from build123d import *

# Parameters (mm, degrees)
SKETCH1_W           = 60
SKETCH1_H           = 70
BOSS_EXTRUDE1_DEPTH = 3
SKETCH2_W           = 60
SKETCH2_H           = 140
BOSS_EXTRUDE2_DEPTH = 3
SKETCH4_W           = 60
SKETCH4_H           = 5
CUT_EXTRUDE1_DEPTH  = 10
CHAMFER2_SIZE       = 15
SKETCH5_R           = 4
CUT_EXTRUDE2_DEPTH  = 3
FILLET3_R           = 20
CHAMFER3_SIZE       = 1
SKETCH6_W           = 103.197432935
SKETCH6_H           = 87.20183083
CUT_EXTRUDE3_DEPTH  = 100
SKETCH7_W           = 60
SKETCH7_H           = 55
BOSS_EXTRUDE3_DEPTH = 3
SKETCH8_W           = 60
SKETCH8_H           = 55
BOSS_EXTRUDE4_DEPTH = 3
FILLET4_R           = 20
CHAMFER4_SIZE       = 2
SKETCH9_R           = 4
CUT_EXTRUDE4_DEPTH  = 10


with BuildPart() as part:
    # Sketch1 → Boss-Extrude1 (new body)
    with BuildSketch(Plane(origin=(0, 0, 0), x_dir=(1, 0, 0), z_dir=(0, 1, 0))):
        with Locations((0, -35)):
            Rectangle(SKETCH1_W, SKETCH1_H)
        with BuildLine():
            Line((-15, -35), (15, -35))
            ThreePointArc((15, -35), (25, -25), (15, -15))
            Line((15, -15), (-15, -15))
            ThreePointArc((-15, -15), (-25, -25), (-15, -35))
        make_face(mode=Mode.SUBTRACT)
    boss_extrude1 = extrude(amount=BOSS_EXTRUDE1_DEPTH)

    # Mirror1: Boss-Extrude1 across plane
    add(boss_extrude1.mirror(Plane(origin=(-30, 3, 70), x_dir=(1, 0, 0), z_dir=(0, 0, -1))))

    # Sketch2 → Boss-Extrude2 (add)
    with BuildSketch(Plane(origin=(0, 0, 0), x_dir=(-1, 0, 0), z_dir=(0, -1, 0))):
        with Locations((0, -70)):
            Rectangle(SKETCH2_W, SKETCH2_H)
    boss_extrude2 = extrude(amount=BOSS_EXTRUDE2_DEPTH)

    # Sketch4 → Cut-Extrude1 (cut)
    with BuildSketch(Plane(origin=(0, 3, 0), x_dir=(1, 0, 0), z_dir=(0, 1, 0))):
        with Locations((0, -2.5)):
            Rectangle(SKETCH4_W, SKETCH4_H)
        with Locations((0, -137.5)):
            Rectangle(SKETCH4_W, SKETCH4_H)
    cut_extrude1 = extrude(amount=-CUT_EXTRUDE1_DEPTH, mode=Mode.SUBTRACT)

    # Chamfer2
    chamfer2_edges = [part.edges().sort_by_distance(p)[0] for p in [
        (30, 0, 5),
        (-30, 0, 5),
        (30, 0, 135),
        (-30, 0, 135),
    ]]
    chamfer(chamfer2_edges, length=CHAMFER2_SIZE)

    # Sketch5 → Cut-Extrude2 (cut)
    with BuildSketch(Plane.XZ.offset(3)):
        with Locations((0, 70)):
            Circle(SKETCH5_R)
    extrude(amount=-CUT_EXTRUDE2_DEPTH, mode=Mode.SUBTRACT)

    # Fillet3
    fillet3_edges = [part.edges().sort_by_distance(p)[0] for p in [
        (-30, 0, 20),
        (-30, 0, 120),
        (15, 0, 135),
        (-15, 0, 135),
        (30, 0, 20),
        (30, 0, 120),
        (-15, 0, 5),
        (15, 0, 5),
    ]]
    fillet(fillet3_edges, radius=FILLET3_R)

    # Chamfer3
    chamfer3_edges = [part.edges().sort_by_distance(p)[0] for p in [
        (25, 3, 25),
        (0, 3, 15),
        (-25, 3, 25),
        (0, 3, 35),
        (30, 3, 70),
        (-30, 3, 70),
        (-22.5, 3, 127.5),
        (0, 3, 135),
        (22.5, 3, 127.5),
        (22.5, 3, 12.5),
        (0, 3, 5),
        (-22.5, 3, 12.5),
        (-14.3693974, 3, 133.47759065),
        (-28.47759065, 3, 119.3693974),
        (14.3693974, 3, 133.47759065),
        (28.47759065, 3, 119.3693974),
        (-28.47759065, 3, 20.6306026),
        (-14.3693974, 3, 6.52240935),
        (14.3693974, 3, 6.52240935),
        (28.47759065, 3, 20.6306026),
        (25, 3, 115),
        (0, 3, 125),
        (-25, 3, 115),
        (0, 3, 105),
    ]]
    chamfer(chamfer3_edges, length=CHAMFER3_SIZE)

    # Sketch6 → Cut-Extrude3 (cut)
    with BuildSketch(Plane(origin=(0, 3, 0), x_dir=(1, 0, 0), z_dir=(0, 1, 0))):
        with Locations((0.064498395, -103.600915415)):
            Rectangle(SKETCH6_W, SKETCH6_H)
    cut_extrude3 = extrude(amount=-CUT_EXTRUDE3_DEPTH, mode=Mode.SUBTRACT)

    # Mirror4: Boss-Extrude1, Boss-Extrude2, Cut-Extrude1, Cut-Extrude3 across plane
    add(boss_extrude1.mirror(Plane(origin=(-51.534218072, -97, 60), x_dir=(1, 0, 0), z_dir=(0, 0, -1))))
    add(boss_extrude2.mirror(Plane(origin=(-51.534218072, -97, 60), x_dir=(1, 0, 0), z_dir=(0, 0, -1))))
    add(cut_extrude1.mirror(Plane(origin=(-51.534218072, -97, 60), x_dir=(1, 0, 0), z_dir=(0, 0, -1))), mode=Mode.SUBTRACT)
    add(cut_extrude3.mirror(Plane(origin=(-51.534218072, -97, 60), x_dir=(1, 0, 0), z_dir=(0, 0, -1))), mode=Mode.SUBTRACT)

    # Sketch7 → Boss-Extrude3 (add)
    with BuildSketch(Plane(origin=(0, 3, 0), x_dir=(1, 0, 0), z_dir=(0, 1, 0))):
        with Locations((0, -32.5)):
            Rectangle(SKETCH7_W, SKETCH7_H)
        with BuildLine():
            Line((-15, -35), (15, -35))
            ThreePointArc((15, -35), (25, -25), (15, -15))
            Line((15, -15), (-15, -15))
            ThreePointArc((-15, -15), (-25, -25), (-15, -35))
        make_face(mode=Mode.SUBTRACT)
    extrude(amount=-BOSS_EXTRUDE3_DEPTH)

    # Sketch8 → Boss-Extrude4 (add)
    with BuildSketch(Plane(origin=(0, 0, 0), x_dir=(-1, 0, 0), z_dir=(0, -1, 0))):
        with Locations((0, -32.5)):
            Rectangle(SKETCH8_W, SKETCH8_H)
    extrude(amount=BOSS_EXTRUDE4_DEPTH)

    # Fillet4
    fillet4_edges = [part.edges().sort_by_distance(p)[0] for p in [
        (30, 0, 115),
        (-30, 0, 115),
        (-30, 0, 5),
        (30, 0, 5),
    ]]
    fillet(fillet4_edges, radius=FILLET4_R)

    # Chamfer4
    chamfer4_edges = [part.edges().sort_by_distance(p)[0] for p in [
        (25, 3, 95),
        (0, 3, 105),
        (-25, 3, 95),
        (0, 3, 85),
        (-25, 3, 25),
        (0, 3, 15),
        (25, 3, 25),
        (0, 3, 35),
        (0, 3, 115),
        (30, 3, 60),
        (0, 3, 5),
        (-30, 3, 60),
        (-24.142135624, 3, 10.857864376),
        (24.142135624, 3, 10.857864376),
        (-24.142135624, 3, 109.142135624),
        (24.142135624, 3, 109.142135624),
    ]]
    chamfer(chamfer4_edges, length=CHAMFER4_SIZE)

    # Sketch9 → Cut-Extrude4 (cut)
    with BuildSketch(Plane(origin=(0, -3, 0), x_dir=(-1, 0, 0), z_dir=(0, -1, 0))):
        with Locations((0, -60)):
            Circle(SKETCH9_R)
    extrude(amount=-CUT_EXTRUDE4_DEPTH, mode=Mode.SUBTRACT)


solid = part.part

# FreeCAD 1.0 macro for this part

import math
import FreeCAD as App
import Part
import Sketcher

V = App.Vector


def edges_at(feature, points):
    """Names of the edges that pass closest to the given points."""
    edges = feature.Shape.Edges
    near = lambda p: min(range(len(edges)), key=lambda i: edges[i].distToShape(Part.Vertex(*p))[0])
    return sorted({f"Edge{near(p) + 1}" for p in points})

doc = App.newDocument("Part")
body = doc.addObject("PartDesign::Body", "Body")

# Sketch on XZ plane
sketch1 = body.newObject("Sketcher::SketchObject", "Sketch")
sketch1.AttachmentSupport = (doc.getObject("XZ_Plane"), [""])
sketch1.MapMode = "FlatFace"
sketch1.addGeometry(Part.LineSegment(V(-30, 0, 0), V(-30, 70, 0)), False)
sketch1.addGeometry(Part.LineSegment(V(-30, 70, 0), V(30, 70, 0)), False)
sketch1.addGeometry(Part.LineSegment(V(30, 70, 0), V(30, 0, 0)), False)
sketch1.addGeometry(Part.LineSegment(V(30, 0, 0), V(-30, 0, 0)), False)
sketch1.addGeometry(Part.LineSegment(V(15, 35, 0), V(-15, 35, 0)), False)
sketch1.addGeometry(Part.ArcOfCircle(Part.Circle(V(-15, 25, 0), V(0, 0, 1), 10), math.radians(90), math.radians(270)), False)
sketch1.addGeometry(Part.LineSegment(V(-15, 15, 0), V(15, 15, 0)), False)
sketch1.addGeometry(Part.ArcOfCircle(Part.Circle(V(15, 25, 0), V(0, 0, 1), 10), math.radians(-90), math.radians(90)), False)
sketch1.addConstraint(Sketcher.Constraint("Coincident", 0, 2, 1, 1))
sketch1.addConstraint(Sketcher.Constraint("Coincident", 1, 2, 2, 1))
sketch1.addConstraint(Sketcher.Constraint("Coincident", 2, 2, 3, 1))
sketch1.addConstraint(Sketcher.Constraint("Coincident", 3, 2, 0, 1))
sketch1.addConstraint(Sketcher.Constraint("Tangent", 4, 2, 5, 1))
sketch1.addConstraint(Sketcher.Constraint("Tangent", 5, 2, 6, 1))
sketch1.addConstraint(Sketcher.Constraint("Tangent", 6, 2, 7, 1))
sketch1.addConstraint(Sketcher.Constraint("Tangent", 7, 2, 4, 1))
sketch1.addConstraint(Sketcher.Constraint("Vertical", 0))
sketch1.addConstraint(Sketcher.Constraint("Horizontal", 1))
sketch1.addConstraint(Sketcher.Constraint("Vertical", 2))
sketch1.addConstraint(Sketcher.Constraint("Horizontal", 3))
sketch1.addConstraint(Sketcher.Constraint("Horizontal", 4))
sketch1.addConstraint(Sketcher.Constraint("Horizontal", 6))
sketch1.addConstraint(Sketcher.Constraint("Symmetric", 2, 2, 3, 2, -1, 1))
sketch1.addConstraint(Sketcher.Constraint("Radius", 5, 10.0))
sketch1.addConstraint(Sketcher.Constraint("DistanceX", 1, 1, 1, 2, 60.0))
sketch1.addConstraint(Sketcher.Constraint("DistanceX", 4, 2, 4, 1, 30.0))
sketch1.addConstraint(Sketcher.Constraint("DistanceY", 0, 1, 0, 2, 70.0))
sketch1.addConstraint(Sketcher.Constraint("DistanceX", 5, 3, -1, 1, 15.0))
sketch1.addConstraint(Sketcher.Constraint("DistanceY", -1, 1, 5, 3, 25.0))
pad1 = body.newObject("PartDesign::Pad", "Pad")
pad1.Profile = sketch1
pad1.Length = 3
pad1.Reversed = True
doc.recompute()

datumplane = body.newObject("PartDesign::Plane", "DatumPlane")
datumplane.AttachmentSupport = (doc.getObject("XY_Plane"), [""])
datumplane.MapMode = "FlatFace"
datumplane.AttachmentOffset = App.Placement(V(0, 0, 70), App.Rotation())
mirrored = body.newObject("PartDesign::Mirrored", "Mirrored")
mirrored.Originals = [pad1]
mirrored.MirrorPlane = (datumplane, [""])
body.Tip = mirrored

# Sketch on XZ plane
sketch2 = body.newObject("Sketcher::SketchObject", "Sketch001")
sketch2.AttachmentSupport = (doc.getObject("XZ_Plane"), [""])
sketch2.MapMode = "FlatFace"
sketch2.addGeometry(Part.LineSegment(V(30, 0, 0), V(30, 140, 0)), False)
sketch2.addGeometry(Part.LineSegment(V(30, 140, 0), V(-30, 140, 0)), False)
sketch2.addGeometry(Part.LineSegment(V(-30, 140, 0), V(-30, 0, 0)), False)
sketch2.addGeometry(Part.LineSegment(V(-30, 0, 0), V(30, 0, 0)), False)
sketch2.addConstraint(Sketcher.Constraint("Coincident", 0, 2, 1, 1))
sketch2.addConstraint(Sketcher.Constraint("Coincident", 1, 2, 2, 1))
sketch2.addConstraint(Sketcher.Constraint("Coincident", 2, 2, 3, 1))
sketch2.addConstraint(Sketcher.Constraint("Coincident", 3, 2, 0, 1))
sketch2.addConstraint(Sketcher.Constraint("Vertical", 0))
sketch2.addConstraint(Sketcher.Constraint("Horizontal", 1))
sketch2.addConstraint(Sketcher.Constraint("Vertical", 2))
sketch2.addConstraint(Sketcher.Constraint("Horizontal", 3))
sketch2.addConstraint(Sketcher.Constraint("Symmetric", 2, 2, 3, 2, -1, 1))
sketch2.addConstraint(Sketcher.Constraint("DistanceX", 1, 2, 1, 1, 60.0))
sketch2.addConstraint(Sketcher.Constraint("DistanceY", 0, 1, 0, 2, 140.0))
pad2 = body.newObject("PartDesign::Pad", "Pad001")
pad2.Profile = sketch2
pad2.Length = 3

# Sketch on XZ plane
sketch3 = body.newObject("Sketcher::SketchObject", "Sketch002")
sketch3.AttachmentSupport = (doc.getObject("XZ_Plane"), [""])
sketch3.MapMode = "FlatFace"
sketch3.AttachmentOffset = App.Placement(V(0, 0, -3), App.Rotation())
sketch3.addGeometry(Part.LineSegment(V(-30, 0, 0), V(-30, 5, 0)), False)
sketch3.addGeometry(Part.LineSegment(V(-30, 5, 0), V(30, 5, 0)), False)
sketch3.addGeometry(Part.LineSegment(V(30, 5, 0), V(30, 0, 0)), False)
sketch3.addGeometry(Part.LineSegment(V(30, 0, 0), V(-30, 0, 0)), False)
sketch3.addGeometry(Part.LineSegment(V(-30, 135, 0), V(-30, 140, 0)), False)
sketch3.addGeometry(Part.LineSegment(V(-30, 140, 0), V(30, 140, 0)), False)
sketch3.addGeometry(Part.LineSegment(V(30, 140, 0), V(30, 135, 0)), False)
sketch3.addGeometry(Part.LineSegment(V(30, 135, 0), V(-30, 135, 0)), False)
sketch3.addConstraint(Sketcher.Constraint("Coincident", 0, 2, 1, 1))
sketch3.addConstraint(Sketcher.Constraint("Coincident", 1, 2, 2, 1))
sketch3.addConstraint(Sketcher.Constraint("Coincident", 2, 2, 3, 1))
sketch3.addConstraint(Sketcher.Constraint("Coincident", 3, 2, 0, 1))
sketch3.addConstraint(Sketcher.Constraint("Coincident", 4, 2, 5, 1))
sketch3.addConstraint(Sketcher.Constraint("Coincident", 5, 2, 6, 1))
sketch3.addConstraint(Sketcher.Constraint("Coincident", 6, 2, 7, 1))
sketch3.addConstraint(Sketcher.Constraint("Coincident", 7, 2, 4, 1))
sketch3.addConstraint(Sketcher.Constraint("Vertical", 0))
sketch3.addConstraint(Sketcher.Constraint("Horizontal", 1))
sketch3.addConstraint(Sketcher.Constraint("Vertical", 2))
sketch3.addConstraint(Sketcher.Constraint("Horizontal", 3))
sketch3.addConstraint(Sketcher.Constraint("Vertical", 4))
sketch3.addConstraint(Sketcher.Constraint("Horizontal", 5))
sketch3.addConstraint(Sketcher.Constraint("Vertical", 6))
sketch3.addConstraint(Sketcher.Constraint("Horizontal", 7))
sketch3.addConstraint(Sketcher.Constraint("Symmetric", 2, 2, 3, 2, -1, 1))
sketch3.addConstraint(Sketcher.Constraint("Vertical", 3, 2, 4, 2))
sketch3.addConstraint(Sketcher.Constraint("Vertical", 2, 2, 5, 2))
sketch3.addConstraint(Sketcher.Constraint("Equal", 2, 4))
sketch3.addConstraint(Sketcher.Constraint("DistanceX", 1, 1, 1, 2, 60.0))
sketch3.addConstraint(Sketcher.Constraint("DistanceY", 0, 1, 0, 2, 5.0))
sketch3.addConstraint(Sketcher.Constraint("DistanceY", -1, 1, 4, 2, 140.0))
pocket1 = body.newObject("PartDesign::Pocket", "Pocket")
pocket1.Profile = sketch3
pocket1.Length = 10
pocket1.Reversed = True
doc.recompute()

chamfer = body.newObject("PartDesign::Chamfer", "Chamfer")
chamfer.Base = (pocket1, edges_at(pocket1, [
    (30, 0, 5),
    (-30, 0, 5),
    (30, 0, 135),
    (-30, 0, 135),
]))
chamfer.Size = 15

# Sketch on XZ plane
sketch4 = body.newObject("Sketcher::SketchObject", "Sketch003")
sketch4.AttachmentSupport = (doc.getObject("XZ_Plane"), [""])
sketch4.MapMode = "FlatFace"
sketch4.AttachmentOffset = App.Placement(V(0, 0, 3), App.Rotation())
sketch4.addGeometry(Part.Circle(V(0, 70, 0), V(0, 0, 1), 4), False)
sketch4.addConstraint(Sketcher.Constraint("PointOnObject", 0, 3, -2))
sketch4.addConstraint(Sketcher.Constraint("Diameter", 0, 8.0))
sketch4.addConstraint(Sketcher.Constraint("DistanceY", -1, 1, 0, 3, 70.0))
pocket2 = body.newObject("PartDesign::Pocket", "Pocket001")
pocket2.Profile = sketch4
pocket2.Length = 3
doc.recompute()

fillet = body.newObject("PartDesign::Fillet", "Fillet")
fillet.Base = (pocket2, edges_at(pocket2, [
    (-30, 0, 20),
    (-30, 0, 120),
    (15, 0, 135),
    (-15, 0, 135),
    (30, 0, 20),
    (30, 0, 120),
    (-15, 0, 5),
    (15, 0, 5),
]))
fillet.Radius = 20
doc.recompute()

chamfer2 = body.newObject("PartDesign::Chamfer", "Chamfer001")
chamfer2.Base = (fillet, edges_at(fillet, [
    (25, 3, 25),
    (0, 3, 15),
    (-25, 3, 25),
    (0, 3, 35),
    (30, 3, 70),
    (-30, 3, 70),
    (-22.5, 3, 127.5),
    (0, 3, 135),
    (22.5, 3, 127.5),
    (22.5, 3, 12.5),
    (0, 3, 5),
    (-22.5, 3, 12.5),
    (-14.369, 3, 133.478),
    (-28.478, 3, 119.369),
    (14.369, 3, 133.478),
    (28.478, 3, 119.369),
    (-28.478, 3, 20.631),
    (-14.369, 3, 6.522),
    (14.369, 3, 6.522),
    (28.478, 3, 20.631),
    (25, 3, 115),
    (0, 3, 125),
    (-25, 3, 115),
    (0, 3, 105),
]))
chamfer2.Size = 1

# Sketch on XZ plane
sketch5 = body.newObject("Sketcher::SketchObject", "Sketch004")
sketch5.AttachmentSupport = (doc.getObject("XZ_Plane"), [""])
sketch5.MapMode = "FlatFace"
sketch5.AttachmentOffset = App.Placement(V(0, 0, -3), App.Rotation())
sketch5.addGeometry(Part.LineSegment(V(-51.534218, 60, 0), V(-51.534218, 147.201831, 0)), False)
sketch5.addGeometry(Part.LineSegment(V(-51.534218, 147.201831, 0), V(51.663215, 147.201831, 0)), False)
sketch5.addGeometry(Part.LineSegment(V(51.663215, 147.201831, 0), V(51.663215, 60, 0)), False)
sketch5.addGeometry(Part.LineSegment(V(51.663215, 60, 0), V(-51.534218, 60, 0)), False)
sketch5.addConstraint(Sketcher.Constraint("Coincident", 0, 2, 1, 1))
sketch5.addConstraint(Sketcher.Constraint("Coincident", 1, 2, 2, 1))
sketch5.addConstraint(Sketcher.Constraint("Coincident", 2, 2, 3, 1))
sketch5.addConstraint(Sketcher.Constraint("Coincident", 3, 2, 0, 1))
sketch5.addConstraint(Sketcher.Constraint("Vertical", 0))
sketch5.addConstraint(Sketcher.Constraint("Horizontal", 1))
sketch5.addConstraint(Sketcher.Constraint("Vertical", 2))
sketch5.addConstraint(Sketcher.Constraint("Horizontal", 3))
sketch5.addConstraint(Sketcher.Constraint("DistanceY", -1, 1, 2, 2, 60.0))
sketch5.addConstraint(Sketcher.Constraint("DistanceY", 0, 1, 0, 2, 87.201831))
sketch5.addConstraint(Sketcher.Constraint("DistanceX", 1, 1, 1, 2, 103.197433))
sketch5.addConstraint(Sketcher.Constraint("DistanceX", 0, 2, -1, 1, 51.534218))
pocket3 = body.newObject("PartDesign::Pocket", "Pocket002")
pocket3.Profile = sketch5
pocket3.Length = 100
pocket3.Reversed = True
doc.recompute()

datumplane2 = body.newObject("PartDesign::Plane", "DatumPlane001")
datumplane2.AttachmentSupport = (doc.getObject("XY_Plane"), [""])
datumplane2.MapMode = "FlatFace"
datumplane2.AttachmentOffset = App.Placement(V(0, 0, 60), App.Rotation())
mirrored2 = body.newObject("PartDesign::Mirrored", "Mirrored001")
mirrored2.Originals = [pad1, pad2, pocket1, pocket3]
mirrored2.MirrorPlane = (datumplane2, [""])
body.Tip = mirrored2

# Sketch on XZ plane
sketch6 = body.newObject("Sketcher::SketchObject", "Sketch005")
sketch6.AttachmentSupport = (doc.getObject("XZ_Plane"), [""])
sketch6.MapMode = "FlatFace"
sketch6.AttachmentOffset = App.Placement(V(0, 0, -3), App.Rotation())
sketch6.addGeometry(Part.LineSegment(V(-30, 5, 0), V(-30, 60, 0)), False)
sketch6.addGeometry(Part.LineSegment(V(-30, 60, 0), V(30, 60, 0)), False)
sketch6.addGeometry(Part.LineSegment(V(30, 60, 0), V(30, 5, 0)), False)
sketch6.addGeometry(Part.LineSegment(V(30, 5, 0), V(-30, 5, 0)), False)
sketch6.addGeometry(Part.LineSegment(V(15, 35, 0), V(-15, 35, 0)), False)
sketch6.addGeometry(Part.ArcOfCircle(Part.Circle(V(-15, 25, 0), V(0, 0, 1), 10), math.radians(90), math.radians(270)), False)
sketch6.addGeometry(Part.LineSegment(V(-15, 15, 0), V(15, 15, 0)), False)
sketch6.addGeometry(Part.ArcOfCircle(Part.Circle(V(15, 25, 0), V(0, 0, 1), 10), math.radians(-90), math.radians(90)), False)
sketch6.addConstraint(Sketcher.Constraint("Coincident", 0, 2, 1, 1))
sketch6.addConstraint(Sketcher.Constraint("Coincident", 1, 2, 2, 1))
sketch6.addConstraint(Sketcher.Constraint("Coincident", 2, 2, 3, 1))
sketch6.addConstraint(Sketcher.Constraint("Coincident", 3, 2, 0, 1))
sketch6.addConstraint(Sketcher.Constraint("Tangent", 4, 2, 5, 1))
sketch6.addConstraint(Sketcher.Constraint("Tangent", 5, 2, 6, 1))
sketch6.addConstraint(Sketcher.Constraint("Tangent", 6, 2, 7, 1))
sketch6.addConstraint(Sketcher.Constraint("Tangent", 7, 2, 4, 1))
sketch6.addConstraint(Sketcher.Constraint("Vertical", 0))
sketch6.addConstraint(Sketcher.Constraint("Horizontal", 1))
sketch6.addConstraint(Sketcher.Constraint("Vertical", 2))
sketch6.addConstraint(Sketcher.Constraint("Horizontal", 3))
sketch6.addConstraint(Sketcher.Constraint("Horizontal", 4))
sketch6.addConstraint(Sketcher.Constraint("Horizontal", 6))
sketch6.addConstraint(Sketcher.Constraint("Radius", 5, 10.0))
sketch6.addConstraint(Sketcher.Constraint("DistanceX", 1, 1, 1, 2, 60.0))
sketch6.addConstraint(Sketcher.Constraint("DistanceX", 4, 2, 4, 1, 30.0))
sketch6.addConstraint(Sketcher.Constraint("DistanceY", 0, 1, 0, 2, 55.0))
sketch6.addConstraint(Sketcher.Constraint("DistanceX", 5, 3, -1, 1, 15.0))
sketch6.addConstraint(Sketcher.Constraint("DistanceY", -1, 1, 5, 3, 25.0))
sketch6.addConstraint(Sketcher.Constraint("DistanceX", 0, 2, -1, 1, 30.0))
sketch6.addConstraint(Sketcher.Constraint("DistanceY", -1, 1, 0, 2, 60.0))
pad3 = body.newObject("PartDesign::Pad", "Pad002")
pad3.Profile = sketch6
pad3.Length = 3

# Sketch on XZ plane
sketch7 = body.newObject("Sketcher::SketchObject", "Sketch006")
sketch7.AttachmentSupport = (doc.getObject("XZ_Plane"), [""])
sketch7.MapMode = "FlatFace"
sketch7.addGeometry(Part.LineSegment(V(30, 5, 0), V(30, 60, 0)), False)
sketch7.addGeometry(Part.LineSegment(V(30, 60, 0), V(-30, 60, 0)), False)
sketch7.addGeometry(Part.LineSegment(V(-30, 60, 0), V(-30, 5, 0)), False)
sketch7.addGeometry(Part.LineSegment(V(-30, 5, 0), V(30, 5, 0)), False)
sketch7.addConstraint(Sketcher.Constraint("Coincident", 0, 2, 1, 1))
sketch7.addConstraint(Sketcher.Constraint("Coincident", 1, 2, 2, 1))
sketch7.addConstraint(Sketcher.Constraint("Coincident", 2, 2, 3, 1))
sketch7.addConstraint(Sketcher.Constraint("Coincident", 3, 2, 0, 1))
sketch7.addConstraint(Sketcher.Constraint("Vertical", 0))
sketch7.addConstraint(Sketcher.Constraint("Horizontal", 1))
sketch7.addConstraint(Sketcher.Constraint("Vertical", 2))
sketch7.addConstraint(Sketcher.Constraint("Horizontal", 3))
sketch7.addConstraint(Sketcher.Constraint("DistanceX", 1, 2, 1, 1, 60.0))
sketch7.addConstraint(Sketcher.Constraint("DistanceY", 0, 1, 0, 2, 55.0))
sketch7.addConstraint(Sketcher.Constraint("DistanceX", -1, 1, 0, 2, 30.0))
sketch7.addConstraint(Sketcher.Constraint("DistanceY", -1, 1, 0, 2, 60.0))
pad4 = body.newObject("PartDesign::Pad", "Pad003")
pad4.Profile = sketch7
pad4.Length = 3
doc.recompute()

fillet2 = body.newObject("PartDesign::Fillet", "Fillet001")
fillet2.Base = (pad4, edges_at(pad4, [
    (30, 0, 115),
    (-30, 0, 115),
    (-30, 0, 5),
    (30, 0, 5),
]))
fillet2.Radius = 20
doc.recompute()

chamfer3 = body.newObject("PartDesign::Chamfer", "Chamfer002")
chamfer3.Base = (fillet2, edges_at(fillet2, [
    (25, 3, 95),
    (0, 3, 105),
    (-25, 3, 95),
    (0, 3, 85),
    (-25, 3, 25),
    (0, 3, 15),
    (25, 3, 25),
    (0, 3, 35),
    (0, 3, 115),
    (30, 3, 60),
    (0, 3, 5),
    (-30, 3, 60),
    (-24.142, 3, 10.858),
    (24.142, 3, 10.858),
    (-24.142, 3, 109.142),
    (24.142, 3, 109.142),
]))
chamfer3.Size = 2

# Sketch on XZ plane
sketch8 = body.newObject("Sketcher::SketchObject", "Sketch007")
sketch8.AttachmentSupport = (doc.getObject("XZ_Plane"), [""])
sketch8.MapMode = "FlatFace"
sketch8.AttachmentOffset = App.Placement(V(0, 0, 3), App.Rotation())
sketch8.addGeometry(Part.Circle(V(0, 60, 0), V(0, 0, 1), 4), False)
sketch8.addConstraint(Sketcher.Constraint("PointOnObject", 0, 3, -2))
sketch8.addConstraint(Sketcher.Constraint("Diameter", 0, 8.0))
sketch8.addConstraint(Sketcher.Constraint("DistanceY", -1, 1, 0, 3, 60.0))
pocket4 = body.newObject("PartDesign::Pocket", "Pocket003")
pocket4.Profile = sketch8
pocket4.Length = 10

doc.recompute()
